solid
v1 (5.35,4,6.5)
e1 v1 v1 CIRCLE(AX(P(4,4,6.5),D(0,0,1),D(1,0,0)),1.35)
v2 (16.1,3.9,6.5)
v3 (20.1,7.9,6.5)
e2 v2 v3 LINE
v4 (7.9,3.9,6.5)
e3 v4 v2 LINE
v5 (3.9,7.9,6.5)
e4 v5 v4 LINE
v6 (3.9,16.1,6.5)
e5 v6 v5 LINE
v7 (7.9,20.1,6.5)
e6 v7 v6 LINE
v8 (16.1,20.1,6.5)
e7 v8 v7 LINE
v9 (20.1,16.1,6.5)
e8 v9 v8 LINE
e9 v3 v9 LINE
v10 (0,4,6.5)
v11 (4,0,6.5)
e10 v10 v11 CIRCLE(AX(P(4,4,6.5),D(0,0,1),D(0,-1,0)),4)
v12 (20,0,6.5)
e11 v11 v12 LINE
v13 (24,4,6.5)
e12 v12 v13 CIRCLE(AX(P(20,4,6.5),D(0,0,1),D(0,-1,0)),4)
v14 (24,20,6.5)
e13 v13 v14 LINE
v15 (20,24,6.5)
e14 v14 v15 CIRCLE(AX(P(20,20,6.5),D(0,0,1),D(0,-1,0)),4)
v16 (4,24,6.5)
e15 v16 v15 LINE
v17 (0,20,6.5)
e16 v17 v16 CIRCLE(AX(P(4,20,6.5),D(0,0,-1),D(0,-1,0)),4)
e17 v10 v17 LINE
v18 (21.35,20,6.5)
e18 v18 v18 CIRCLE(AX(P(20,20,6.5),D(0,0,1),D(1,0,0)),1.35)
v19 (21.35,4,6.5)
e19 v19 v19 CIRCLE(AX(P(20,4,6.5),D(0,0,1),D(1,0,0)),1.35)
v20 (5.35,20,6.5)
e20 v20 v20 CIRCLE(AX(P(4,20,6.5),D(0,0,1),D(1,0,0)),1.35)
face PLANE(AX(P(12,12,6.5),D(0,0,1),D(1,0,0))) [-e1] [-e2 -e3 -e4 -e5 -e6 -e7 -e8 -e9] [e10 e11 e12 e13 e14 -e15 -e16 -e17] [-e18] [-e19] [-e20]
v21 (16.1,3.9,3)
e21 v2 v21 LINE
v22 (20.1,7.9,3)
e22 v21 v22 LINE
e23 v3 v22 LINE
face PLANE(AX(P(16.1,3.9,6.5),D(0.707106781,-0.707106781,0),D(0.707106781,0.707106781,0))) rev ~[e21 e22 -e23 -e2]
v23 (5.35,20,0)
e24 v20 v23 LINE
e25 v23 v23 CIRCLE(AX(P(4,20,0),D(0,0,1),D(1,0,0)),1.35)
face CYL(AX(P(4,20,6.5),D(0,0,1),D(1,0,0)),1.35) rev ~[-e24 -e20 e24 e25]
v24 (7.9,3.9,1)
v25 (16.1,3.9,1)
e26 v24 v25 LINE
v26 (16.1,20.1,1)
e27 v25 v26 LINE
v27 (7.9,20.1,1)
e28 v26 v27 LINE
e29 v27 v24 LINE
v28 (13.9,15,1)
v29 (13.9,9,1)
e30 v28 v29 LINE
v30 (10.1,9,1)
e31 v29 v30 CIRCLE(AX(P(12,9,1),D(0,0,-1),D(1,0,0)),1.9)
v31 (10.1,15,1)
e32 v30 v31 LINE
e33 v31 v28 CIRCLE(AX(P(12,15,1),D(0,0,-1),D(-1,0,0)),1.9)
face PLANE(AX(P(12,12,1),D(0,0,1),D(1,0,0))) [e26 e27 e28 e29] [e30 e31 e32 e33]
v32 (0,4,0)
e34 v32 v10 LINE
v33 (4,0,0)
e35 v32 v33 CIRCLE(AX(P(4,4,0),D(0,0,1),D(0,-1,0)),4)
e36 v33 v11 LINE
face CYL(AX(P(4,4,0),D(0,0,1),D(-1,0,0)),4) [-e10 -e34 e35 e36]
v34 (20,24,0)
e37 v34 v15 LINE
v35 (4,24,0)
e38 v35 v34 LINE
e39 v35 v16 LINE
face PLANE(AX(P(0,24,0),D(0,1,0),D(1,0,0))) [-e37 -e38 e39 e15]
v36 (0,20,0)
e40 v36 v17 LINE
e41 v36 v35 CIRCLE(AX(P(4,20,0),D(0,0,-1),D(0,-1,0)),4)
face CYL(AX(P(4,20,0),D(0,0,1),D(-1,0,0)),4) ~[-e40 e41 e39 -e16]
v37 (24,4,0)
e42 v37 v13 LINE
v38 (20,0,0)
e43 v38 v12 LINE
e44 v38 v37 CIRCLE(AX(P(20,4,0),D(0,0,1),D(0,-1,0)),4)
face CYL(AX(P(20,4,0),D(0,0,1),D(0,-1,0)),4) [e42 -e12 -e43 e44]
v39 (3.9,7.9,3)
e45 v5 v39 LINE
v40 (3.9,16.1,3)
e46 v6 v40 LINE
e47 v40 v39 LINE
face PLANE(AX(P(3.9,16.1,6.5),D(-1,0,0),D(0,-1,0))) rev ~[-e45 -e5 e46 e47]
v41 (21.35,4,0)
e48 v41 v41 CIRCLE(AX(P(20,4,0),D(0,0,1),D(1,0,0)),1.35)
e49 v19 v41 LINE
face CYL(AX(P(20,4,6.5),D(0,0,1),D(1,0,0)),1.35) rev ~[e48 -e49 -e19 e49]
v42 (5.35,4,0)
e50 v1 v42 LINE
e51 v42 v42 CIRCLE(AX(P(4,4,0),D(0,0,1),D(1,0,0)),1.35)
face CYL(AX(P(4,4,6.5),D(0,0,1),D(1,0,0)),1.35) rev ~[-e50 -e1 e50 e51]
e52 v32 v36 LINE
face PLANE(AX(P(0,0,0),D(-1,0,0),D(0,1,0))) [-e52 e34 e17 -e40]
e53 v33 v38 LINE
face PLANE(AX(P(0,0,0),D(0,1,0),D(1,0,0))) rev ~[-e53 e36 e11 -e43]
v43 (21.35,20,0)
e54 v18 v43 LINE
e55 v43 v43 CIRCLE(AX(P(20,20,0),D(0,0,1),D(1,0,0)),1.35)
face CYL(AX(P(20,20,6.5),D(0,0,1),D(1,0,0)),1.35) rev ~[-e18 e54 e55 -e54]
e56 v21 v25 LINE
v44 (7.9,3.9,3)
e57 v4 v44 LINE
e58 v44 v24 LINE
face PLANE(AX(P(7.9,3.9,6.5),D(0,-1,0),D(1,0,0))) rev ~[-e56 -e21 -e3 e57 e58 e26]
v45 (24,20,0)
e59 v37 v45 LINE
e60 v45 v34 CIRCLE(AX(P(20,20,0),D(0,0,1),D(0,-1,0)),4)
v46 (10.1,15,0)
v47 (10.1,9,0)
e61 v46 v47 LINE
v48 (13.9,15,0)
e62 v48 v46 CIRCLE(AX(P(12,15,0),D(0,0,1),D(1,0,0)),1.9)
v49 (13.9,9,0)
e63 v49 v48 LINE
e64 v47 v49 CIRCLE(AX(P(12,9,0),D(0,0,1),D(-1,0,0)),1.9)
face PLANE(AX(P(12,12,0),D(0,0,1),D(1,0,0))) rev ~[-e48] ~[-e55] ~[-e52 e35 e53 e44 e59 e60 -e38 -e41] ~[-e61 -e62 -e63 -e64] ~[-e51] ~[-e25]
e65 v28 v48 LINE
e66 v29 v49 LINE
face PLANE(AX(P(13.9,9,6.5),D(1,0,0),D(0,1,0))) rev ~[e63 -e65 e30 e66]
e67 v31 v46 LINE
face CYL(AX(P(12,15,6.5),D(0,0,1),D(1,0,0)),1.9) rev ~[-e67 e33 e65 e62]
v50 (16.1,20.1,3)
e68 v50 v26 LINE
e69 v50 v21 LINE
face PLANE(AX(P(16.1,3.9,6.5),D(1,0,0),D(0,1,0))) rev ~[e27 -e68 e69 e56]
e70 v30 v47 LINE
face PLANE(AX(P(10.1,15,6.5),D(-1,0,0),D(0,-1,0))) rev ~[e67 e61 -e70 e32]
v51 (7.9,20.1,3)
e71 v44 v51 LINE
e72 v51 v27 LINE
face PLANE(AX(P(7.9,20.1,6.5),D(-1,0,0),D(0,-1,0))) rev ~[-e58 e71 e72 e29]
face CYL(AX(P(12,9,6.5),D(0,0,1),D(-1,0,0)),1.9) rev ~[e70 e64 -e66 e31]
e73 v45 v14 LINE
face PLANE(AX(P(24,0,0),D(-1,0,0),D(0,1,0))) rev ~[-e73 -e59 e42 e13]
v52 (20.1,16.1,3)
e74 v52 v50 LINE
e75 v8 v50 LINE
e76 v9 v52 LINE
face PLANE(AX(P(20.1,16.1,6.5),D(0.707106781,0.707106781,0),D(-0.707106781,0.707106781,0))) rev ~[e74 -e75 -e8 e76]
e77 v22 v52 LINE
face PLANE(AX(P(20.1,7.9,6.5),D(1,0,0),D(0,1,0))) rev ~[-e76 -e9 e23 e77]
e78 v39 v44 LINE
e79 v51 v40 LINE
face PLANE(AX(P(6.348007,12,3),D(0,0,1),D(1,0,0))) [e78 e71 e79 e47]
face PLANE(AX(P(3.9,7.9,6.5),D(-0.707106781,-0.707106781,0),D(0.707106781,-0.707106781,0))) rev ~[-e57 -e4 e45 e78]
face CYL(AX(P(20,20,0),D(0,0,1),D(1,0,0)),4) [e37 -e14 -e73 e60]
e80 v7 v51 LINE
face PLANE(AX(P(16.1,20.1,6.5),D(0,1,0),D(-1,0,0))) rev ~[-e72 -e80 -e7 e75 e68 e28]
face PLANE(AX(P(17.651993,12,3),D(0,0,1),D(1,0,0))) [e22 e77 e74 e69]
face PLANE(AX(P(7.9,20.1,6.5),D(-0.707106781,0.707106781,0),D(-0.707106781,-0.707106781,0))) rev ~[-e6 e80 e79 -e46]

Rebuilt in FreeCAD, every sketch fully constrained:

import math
import FreeCAD as App
import Part
import Sketcher
Q = App.Units.Quantity


def edges_at(feature, points):
    """Names of the edges that pass closest to the given points."""
    edges = feature.Shape.Edges
    near = lambda p: min(range(len(edges)), key=lambda i: edges[i].distToShape(Part.Vertex(*p))[0])
    return sorted({f"Edge{near(p) + 1}" for p in points})

doc = App.newDocument("Part")
body = doc.addObject("PartDesign::Body", "Body")

sketch1 = doc.addObject("Sketcher::SketchObject", "Sketch")
body.addObject(sketch1)
sketch1.AttachmentSupport = (doc.XY_Plane, [""])
sketch1.MapMode = "FlatFace"
sketch1.addGeometry([
    Part.LineSegment(App.Vector(0, 24, 0), App.Vector(0, 0, 0)),
    Part.LineSegment(App.Vector(0, 0, 0), App.Vector(24, 0, 0)),
    Part.LineSegment(App.Vector(24, 0, 0), App.Vector(24, 24, 0)),
    Part.LineSegment(App.Vector(24, 24, 0), App.Vector(0, 24, 0)),
], False)
sketch1.addConstraint([
    Sketcher.Constraint("Coincident", 0, 2, 1, 1),
    Sketcher.Constraint("Coincident", 1, 2, 2, 1),
    Sketcher.Constraint("Coincident", 2, 2, 3, 1),
    Sketcher.Constraint("Coincident", 3, 2, 0, 1),
    Sketcher.Constraint("Vertical", 0),
    Sketcher.Constraint("Horizontal", 1),
    Sketcher.Constraint("Vertical", 2),
    Sketcher.Constraint("Horizontal", 3),
    Sketcher.Constraint("Coincident", 0, 2, -1, 1),
    Sketcher.Constraint("Equal", 3, 0),
    Sketcher.Constraint("DistanceX", 1, 1, 1, 2, Q("24 mm")),
])
pad1 = doc.addObject("PartDesign::Pad", "Pad")
body.addObject(pad1)
pad1.Profile = sketch1
pad1.Length = 6.5
doc.recompute()

fillet = doc.addObject("PartDesign::Fillet", "Fillet")
body.addObject(fillet)
fillet.Base = (pad1, edges_at(pad1, [
    (0, 0, 3.25),
    (24, 0, 3.25),
    (24, 24, 3.25),
    (0, 24, 3.25),
]))
fillet.Radius = 4

sketch2 = doc.addObject("Sketcher::SketchObject", "Sketch001")
body.addObject(sketch2)
sketch2.AttachmentSupport = (doc.XY_Plane, [""])
sketch2.MapMode = "FlatFace"
sketch2.AttachmentOffset = App.Placement(App.Vector(0, 0, 6.5), App.Rotation())
sketch2.addGeometry([
    Part.Circle(App.Vector(4, 4, 0), App.Vector(0, 0, 1), 1.4),
    Part.Circle(App.Vector(4, 20, 0), App.Vector(0, 0, 1), 1.4),
    Part.Circle(App.Vector(20, 4, 0), App.Vector(0, 0, 1), 1.4),
    Part.Circle(App.Vector(20, 20, 0), App.Vector(0, 0, 1), 1.4),
], False)
sketch2.addConstraint([
    Sketcher.Constraint("Equal", 0, 1),
    Sketcher.Constraint("Equal", 1, 2),
    Sketcher.Constraint("Equal", 2, 3),
    Sketcher.Constraint("Horizontal", 0, 3, 2, 3),
    Sketcher.Constraint("Horizontal", 1, 3, 3, 3),
    Sketcher.Constraint("Vertical", 0, 3, 1, 3),
    Sketcher.Constraint("Vertical", 2, 3, 3, 3),
    Sketcher.Constraint("Diameter", 0, Q("2.7 mm")),
    Sketcher.Constraint("DistanceX", -1, 1, 0, 3, Q("4 mm")),
    Sketcher.Constraint("DistanceY", -1, 1, 0, 3, Q("4 mm")),
    Sketcher.Constraint("DistanceY", -1, 1, 1, 3, Q("20 mm")),
    Sketcher.Constraint("DistanceX", -1, 1, 2, 3, Q("20 mm")),
])
pocket1 = doc.addObject("PartDesign::Pocket", "Pocket")
body.addObject(pocket1)
pocket1.Profile = sketch2
pocket1.Type = "ThroughAll"

sketch3 = doc.addObject("Sketcher::SketchObject", "Sketch002")
body.addObject(sketch3)
sketch3.AttachmentSupport = (doc.XY_Plane, [""])
sketch3.MapMode = "FlatFace"
sketch3.AttachmentOffset = App.Placement(App.Vector(0, 0, 6.5), App.Rotation())
sketch3.addGeometry([
    Part.LineSegment(App.Vector(16.1, 3.9, 0), App.Vector(16.1, 20.1, 0)),
    Part.LineSegment(App.Vector(16.1, 20.1, 0), App.Vector(7.9, 20.1, 0)),
    Part.LineSegment(App.Vector(7.9, 20.1, 0), App.Vector(7.9, 3.9, 0)),
    Part.LineSegment(App.Vector(7.9, 3.9, 0), App.Vector(16.1, 3.9, 0)),
    Part.ArcOfCircle(Part.Circle(App.Vector(12, 9, 0), App.Vector(0, 0, 1), 1.9), math.radians(180), math.radians(360)),
    Part.LineSegment(App.Vector(10.1, 9, 0), App.Vector(10.1, 15, 0)),
    Part.ArcOfCircle(Part.Circle(App.Vector(12, 15, 0), App.Vector(0, 0, 1), 1.9), math.radians(0), math.radians(180)),
    Part.LineSegment(App.Vector(13.9, 15, 0), App.Vector(13.9, 9, 0)),
], False)
sketch3.addConstraint([
    Sketcher.Constraint("Coincident", 0, 2, 1, 1),
    Sketcher.Constraint("Coincident", 1, 2, 2, 1),
    Sketcher.Constraint("Coincident", 2, 2, 3, 1),
    Sketcher.Constraint("Coincident", 3, 2, 0, 1),
    Sketcher.Constraint("Tangent", 4, 1, 5, 1),
    Sketcher.Constraint("Tangent", 5, 2, 6, 2),
    Sketcher.Constraint("Tangent", 6, 1, 7, 1),
    Sketcher.Constraint("Tangent", 7, 2, 4, 2),
    Sketcher.Constraint("Vertical", 0),
    Sketcher.Constraint("Horizontal", 1),
    Sketcher.Constraint("Vertical", 2),
    Sketcher.Constraint("Horizontal", 3),
    Sketcher.Constraint("Vertical", 5),
    Sketcher.Constraint("Vertical", 7),
    Sketcher.Constraint("Radius", 4, Q("1.9 mm")),
    Sketcher.Constraint("DistanceY", 5, 1, 5, 2, Q("6 mm")),
    Sketcher.Constraint("DistanceX", 1, 2, 1, 1, Q("8.2 mm")),
    Sketcher.Constraint("DistanceY", 0, 1, 0, 2, Q("16.2 mm")),
    Sketcher.Constraint("DistanceX", -1, 1, 4, 3, Q("12 mm")),
    Sketcher.Constraint("DistanceY", -1, 1, 4, 3, Q("9 mm")),
    Sketcher.Constraint("DistanceX", 4, 1, 3, 2, Q("6 mm")),
    Sketcher.Constraint("DistanceY", -1, 1, 0, 2, Q("20.1 mm")),
])
pocket2 = doc.addObject("PartDesign::Pocket", "Pocket001")
body.addObject(pocket2)
pocket2.Profile = sketch3
pocket2.Length = 5.5

sketch4 = doc.addObject("Sketcher::SketchObject", "Sketch003")
body.addObject(sketch4)
sketch4.AttachmentSupport = (doc.XY_Plane, [""])
sketch4.MapMode = "FlatFace"
sketch4.AttachmentOffset = App.Placement(App.Vector(0, 0, 6.5), App.Rotation())
sketch4.addGeometry([
    Part.ArcOfCircle(Part.Circle(App.Vector(12, 15, 0), App.Vector(0, 0, 1), 1.9), math.radians(0), math.radians(180)),
    Part.LineSegment(App.Vector(10.1, 15, 0), App.Vector(10.1, 9, 0)),
    Part.ArcOfCircle(Part.Circle(App.Vector(12, 9, 0), App.Vector(0, 0, 1), 1.9), math.radians(180), math.radians(360)),
    Part.LineSegment(App.Vector(13.9, 9, 0), App.Vector(13.9, 15, 0)),
], False)
sketch4.addConstraint([
    Sketcher.Constraint("Tangent", 0, 2, 1, 1),
    Sketcher.Constraint("Tangent", 1, 2, 2, 1),
    Sketcher.Constraint("Tangent", 2, 2, 3, 1),
    Sketcher.Constraint("Tangent", 3, 2, 0, 1),
    Sketcher.Constraint("Vertical", 1),
    Sketcher.Constraint("Vertical", 3),
    Sketcher.Constraint("Radius", 0, Q("1.9 mm")),
    Sketcher.Constraint("DistanceY", 1, 2, 1, 1, Q("6 mm")),
    Sketcher.Constraint("DistanceX", -1, 1, 0, 3, Q("12 mm")),
    Sketcher.Constraint("DistanceY", -1, 1, 0, 3, Q("15 mm")),
])
pocket3 = doc.addObject("PartDesign::Pocket", "Pocket002")
body.addObject(pocket3)
pocket3.Profile = sketch4
pocket3.Type = "ThroughAll"

sketch5 = doc.addObject("Sketcher::SketchObject", "Sketch004")
body.addObject(sketch5)
sketch5.AttachmentSupport = (doc.XY_Plane, [""])
sketch5.MapMode = "FlatFace"
sketch5.AttachmentOffset = App.Placement(App.Vector(0, 0, 6.5), App.Rotation())
sketch5.addGeometry([
    Part.LineSegment(App.Vector(8, 20, 0), App.Vector(4, 16, 0)),
    Part.LineSegment(App.Vector(4, 16, 0), App.Vector(4, 8, 0)),
    Part.LineSegment(App.Vector(4, 8, 0), App.Vector(8, 4, 0)),
    Part.LineSegment(App.Vector(8, 4, 0), App.Vector(8, 20, 0)),
    Part.LineSegment(App.Vector(16, 20, 0), App.Vector(16, 4, 0)),
    Part.LineSegment(App.Vector(16, 4, 0), App.Vector(20, 8, 0)),
    Part.LineSegment(App.Vector(20, 8, 0), App.Vector(20, 16, 0)),
    Part.LineSegment(App.Vector(20, 16, 0), App.Vector(16, 20, 0)),
], False)
sketch5.addConstraint([
    Sketcher.Constraint("Coincident", 0, 2, 1, 1),
    Sketcher.Constraint("Coincident", 1, 2, 2, 1),
    Sketcher.Constraint("Coincident", 2, 2, 3, 1),
    Sketcher.Constraint("Coincident", 3, 2, 0, 1),
    Sketcher.Constraint("Coincident", 4, 2, 5, 1),
    Sketcher.Constraint("Coincident", 5, 2, 6, 1),
    Sketcher.Constraint("Coincident", 6, 2, 7, 1),
    Sketcher.Constraint("Coincident", 7, 2, 4, 1),
    Sketcher.Constraint("Vertical", 1),
    Sketcher.Constraint("Vertical", 3),
    Sketcher.Constraint("Vertical", 4),
    Sketcher.Constraint("Vertical", 6),
    Sketcher.Constraint("Perpendicular", 0, 2),
    Sketcher.Constraint("Perpendicular", 2, 5),
    Sketcher.Constraint("Perpendicular", 5, 7),
    Sketcher.Constraint("Horizontal", 2, 2, 4, 2),
    Sketcher.Constraint("Horizontal", 1, 2, 5, 2),
    Sketcher.Constraint("Horizontal", 0, 2, 6, 2),
    Sketcher.Constraint("Horizontal", 3, 2, 7, 2),
    Sketcher.Constraint("DistanceY", 1, 2, 1, 1, Q("8.2 mm")),
    Sketcher.Constraint("DistanceY", 3, 1, 3, 2, Q("16.2 mm")),
    Sketcher.Constraint("DistanceX", -1, 1, 0, 2, Q("3.9 mm")),
    Sketcher.Constraint("DistanceY", -1, 1, 0, 2, Q("16.1 mm")),
    Sketcher.Constraint("DistanceX", -1, 1, 4, 2, Q("16.1 mm")),
])
pocket4 = doc.addObject("PartDesign::Pocket", "Pocket003")
body.addObject(pocket4)
pocket4.Profile = sketch5
pocket4.Length = 3.5

doc.recompute()
